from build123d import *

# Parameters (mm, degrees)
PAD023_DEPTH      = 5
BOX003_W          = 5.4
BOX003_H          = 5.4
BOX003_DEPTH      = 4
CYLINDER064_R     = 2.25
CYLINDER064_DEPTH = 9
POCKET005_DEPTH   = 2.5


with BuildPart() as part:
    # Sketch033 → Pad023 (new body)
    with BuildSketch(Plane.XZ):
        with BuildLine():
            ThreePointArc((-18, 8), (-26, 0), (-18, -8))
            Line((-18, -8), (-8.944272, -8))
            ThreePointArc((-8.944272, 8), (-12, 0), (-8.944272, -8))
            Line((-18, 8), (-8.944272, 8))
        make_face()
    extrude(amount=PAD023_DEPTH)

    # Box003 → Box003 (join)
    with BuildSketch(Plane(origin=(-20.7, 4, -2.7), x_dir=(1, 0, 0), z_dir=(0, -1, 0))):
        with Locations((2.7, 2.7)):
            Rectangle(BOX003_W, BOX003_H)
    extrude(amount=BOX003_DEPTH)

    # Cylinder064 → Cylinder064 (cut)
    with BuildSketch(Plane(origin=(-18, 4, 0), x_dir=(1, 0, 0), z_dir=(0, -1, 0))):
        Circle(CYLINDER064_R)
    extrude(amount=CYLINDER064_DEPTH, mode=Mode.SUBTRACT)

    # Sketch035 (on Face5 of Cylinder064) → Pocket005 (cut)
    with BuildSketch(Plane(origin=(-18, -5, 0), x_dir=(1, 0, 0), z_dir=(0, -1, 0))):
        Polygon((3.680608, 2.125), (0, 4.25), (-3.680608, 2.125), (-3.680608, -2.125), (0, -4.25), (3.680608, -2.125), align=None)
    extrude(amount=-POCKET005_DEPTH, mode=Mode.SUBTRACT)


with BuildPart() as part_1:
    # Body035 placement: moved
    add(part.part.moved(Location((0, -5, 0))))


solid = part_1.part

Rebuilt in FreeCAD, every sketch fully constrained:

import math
import FreeCAD as App
import Part
import Sketcher

V = App.Vector
Q = App.Units.Quantity


def add_polygon(sketch, points):
    """Adds a closed chain of lines whose ends are joined by coincident constraints."""
    first, n = sketch.GeometryCount, len(points)
    for a, b in zip(points, points[1:] + points[:1]):
        sketch.addGeometry(Part.LineSegment(App.Vector(*a, 0), App.Vector(*b, 0)), False)
    for i in range(n):
        sketch.addConstraint(Sketcher.Constraint("Coincident", first + i, 2, first + (i + 1) % n, 1))

doc = App.newDocument("Part")
params = doc.addObject("Spreadsheet::Sheet", "Params")
for row, (alias, value) in enumerate([
    ("sketch1_radius", "8 mm"),
    ("sketch1_radius2", "12 mm"),
    ("pad1_length", "5 mm"),
    ("sketch2_width", "5.4 mm"),
    ("pad2_length", "4 mm"),
    ("sketch3_diameter", "4.5 mm"),
    ("pocket1_length", "9 mm"),
    ("sketch4_height", "4.25 mm"),
    ("pocket2_length", "2.5 mm"),
], start=1):
    params.set(f"A{row}", alias)
    params.set(f"B{row}", "=" + value)
    params.setAlias(f"B{row}", alias)

body = doc.addObject("PartDesign::Body", "Body")

# Sketch on XZ plane
sketch1 = doc.addObject("Sketcher::SketchObject", "Sketch")
body.addObject(sketch1)
sketch1.AttachmentSupport = (doc.XZ_Plane, [""])
sketch1.MapMode = "FlatFace"
sketch1.addGeometry([
    Part.ArcOfCircle(Part.Circle(V(-18, 0, 0), V(0, 0, 1), 8), math.radians(90), math.radians(270)),
    Part.LineSegment(V(-18, -8, 0), V(-9, -8, 0)),
    Part.ArcOfCircle(Part.Circle(V(0, 0, 0), V(0, 0, 1), 12), math.radians(138), math.radians(222)),
    Part.LineSegment(V(-9, 8, 0), V(-18, 8, 0)),
], False)
sketch1.addConstraint([
    Sketcher.Constraint("Tangent", 0, 2, 1, 1),
    Sketcher.Constraint("Coincident", 1, 2, 2, 2),
    Sketcher.Constraint("Coincident", 2, 1, 3, 1),
    Sketcher.Constraint("Tangent", 3, 2, 0, 1),
    Sketcher.Constraint("Horizontal", 1),
    Sketcher.Constraint("Horizontal", 3),
    Sketcher.Constraint("Coincident", 2, 3, -1, 1),
    Sketcher.Constraint("PointOnObject", 0, 3, -1),
    Sketcher.Constraint("Radius", 0, 8.0),
    Sketcher.Constraint("Radius", 2, 12.0),
    Sketcher.Constraint("DistanceX", 0, 3, -1, 1, 18.0),
])
sketch1.setExpression("Constraints[8]", "Params.sketch1_radius")
sketch1.setExpression("Constraints[9]", "Params.sketch1_radius2")
pad1 = doc.addObject("PartDesign::Pad", "Pad")
body.addObject(pad1)
pad1.Profile = sketch1
pad1.setExpression("Length", "Params.pad1_length")

# Sketch on XZ plane
sketch2 = doc.addObject("Sketcher::SketchObject", "Sketch001")
body.addObject(sketch2)
sketch2.AttachmentSupport = (doc.XZ_Plane, [""])
sketch2.MapMode = "FlatFace"
sketch2.AttachmentOffset = App.Placement(V(0, 0, -4), App.Rotation())
add_polygon(sketch2, [(-21, 3), (-21, -3), (-15, -3), (-15, 3)])  # lines 0-3
sketch2.addConstraint([
    Sketcher.Constraint("Vertical", 0),
    Sketcher.Constraint("Horizontal", 1),
    Sketcher.Constraint("Vertical", 2),
    Sketcher.Constraint("Horizontal", 3),
    Sketcher.Constraint("Equal", 3, 0),
    Sketcher.Constraint("DistanceX", 1, 1, 1, 2, 5.4),
    Sketcher.Constraint("DistanceX", 0, 2, -1, 1, 20.7),
    Sketcher.Constraint("DistanceY", 0, 2, -1, 1, 2.7),
])
sketch2.setExpression("Constraints[9]", "Params.sketch2_width")
pad2 = doc.addObject("PartDesign::Pad", "Pad001")
body.addObject(pad2)
pad2.Profile = sketch2
pad2.setExpression("Length", "Params.pad2_length")

# Sketch on XZ plane
sketch3 = doc.addObject("Sketcher::SketchObject", "Sketch002")
body.addObject(sketch3)
sketch3.AttachmentSupport = (doc.XZ_Plane, [""])
sketch3.MapMode = "FlatFace"
sketch3.AttachmentOffset = App.Placement(V(0, 0, -4), App.Rotation())
sketch3.addGeometry(Part.Circle(V(-18, 0, 0), V(0, 0, 1), 2.2), False)
sketch3.addConstraint([
    Sketcher.Constraint("PointOnObject", 0, 3, -1),
    Sketcher.Constraint("Diameter", 0, 4.5),
    Sketcher.Constraint("DistanceX", 0, 3, -1, 1, 18.0),
])
sketch3.setExpression("Constraints[1]", "Params.sketch3_diameter")
pocket1 = doc.addObject("PartDesign::Pocket", "Pocket")
body.addObject(pocket1)
pocket1.Profile = sketch3
pocket1.setExpression("Length", "Params.pocket1_length")
pocket1.Reversed = True

# Sketch on XZ plane
sketch4 = doc.addObject("Sketcher::SketchObject", "Sketch003")
body.addObject(sketch4)
sketch4.AttachmentSupport = (doc.XZ_Plane, [""])
sketch4.MapMode = "FlatFace"
sketch4.AttachmentOffset = App.Placement(V(0, 0, 5), App.Rotation())
add_polygon(sketch4, [(-14.3, 2.1), (-18, 4.2), (-21.7, 2.1), (-21.7, -2.1), (-18, -4.2), (-14.3, -2.1)])  # lines 0-5
sketch4.addConstraint([
    Sketcher.Constraint("Vertical", 2),
    Sketcher.Constraint("Vertical", 5),
    Sketcher.Constraint("Symmetric", 0, 2, 3, 2, -1),
    Sketcher.Constraint("Parallel", 0, 3),
    Sketcher.Constraint("Parallel", 1, 4),
    Sketcher.Constraint("Horizontal", 2, 2, 4, 2),
    Sketcher.Constraint("Horizontal", 1, 2, 5, 2),
    Sketcher.Constraint("Angle", 0, Q("150 deg")),
    Sketcher.Constraint("DistanceX", 0, 2, -1, 1, 18.0),
    Sketcher.Constraint("DistanceY", 2, 2, 2, 1, 4.25),
    Sketcher.Constraint("DistanceY", 3, 2, 0, 2, 8.5),
])
sketch4.setExpression("Constraints[15]", "Params.sketch4_height")
pocket2 = doc.addObject("PartDesign::Pocket", "Pocket001")
body.addObject(pocket2)
pocket2.Profile = sketch4
pocket2.setExpression("Length", "Params.pocket2_length")
body2 = doc.addObject("PartDesign::Body", "Body001")
doc.recompute()

body.Placement = App.Placement(V(0, -5, 0), App.Rotation(V(0, 0, 1), 0))
boolean = doc.addObject("PartDesign::Boolean", "Boolean")
body2.addObject(boolean)
boolean.Type = "Fuse"
boolean.addObjects([body])

doc.recompute()
